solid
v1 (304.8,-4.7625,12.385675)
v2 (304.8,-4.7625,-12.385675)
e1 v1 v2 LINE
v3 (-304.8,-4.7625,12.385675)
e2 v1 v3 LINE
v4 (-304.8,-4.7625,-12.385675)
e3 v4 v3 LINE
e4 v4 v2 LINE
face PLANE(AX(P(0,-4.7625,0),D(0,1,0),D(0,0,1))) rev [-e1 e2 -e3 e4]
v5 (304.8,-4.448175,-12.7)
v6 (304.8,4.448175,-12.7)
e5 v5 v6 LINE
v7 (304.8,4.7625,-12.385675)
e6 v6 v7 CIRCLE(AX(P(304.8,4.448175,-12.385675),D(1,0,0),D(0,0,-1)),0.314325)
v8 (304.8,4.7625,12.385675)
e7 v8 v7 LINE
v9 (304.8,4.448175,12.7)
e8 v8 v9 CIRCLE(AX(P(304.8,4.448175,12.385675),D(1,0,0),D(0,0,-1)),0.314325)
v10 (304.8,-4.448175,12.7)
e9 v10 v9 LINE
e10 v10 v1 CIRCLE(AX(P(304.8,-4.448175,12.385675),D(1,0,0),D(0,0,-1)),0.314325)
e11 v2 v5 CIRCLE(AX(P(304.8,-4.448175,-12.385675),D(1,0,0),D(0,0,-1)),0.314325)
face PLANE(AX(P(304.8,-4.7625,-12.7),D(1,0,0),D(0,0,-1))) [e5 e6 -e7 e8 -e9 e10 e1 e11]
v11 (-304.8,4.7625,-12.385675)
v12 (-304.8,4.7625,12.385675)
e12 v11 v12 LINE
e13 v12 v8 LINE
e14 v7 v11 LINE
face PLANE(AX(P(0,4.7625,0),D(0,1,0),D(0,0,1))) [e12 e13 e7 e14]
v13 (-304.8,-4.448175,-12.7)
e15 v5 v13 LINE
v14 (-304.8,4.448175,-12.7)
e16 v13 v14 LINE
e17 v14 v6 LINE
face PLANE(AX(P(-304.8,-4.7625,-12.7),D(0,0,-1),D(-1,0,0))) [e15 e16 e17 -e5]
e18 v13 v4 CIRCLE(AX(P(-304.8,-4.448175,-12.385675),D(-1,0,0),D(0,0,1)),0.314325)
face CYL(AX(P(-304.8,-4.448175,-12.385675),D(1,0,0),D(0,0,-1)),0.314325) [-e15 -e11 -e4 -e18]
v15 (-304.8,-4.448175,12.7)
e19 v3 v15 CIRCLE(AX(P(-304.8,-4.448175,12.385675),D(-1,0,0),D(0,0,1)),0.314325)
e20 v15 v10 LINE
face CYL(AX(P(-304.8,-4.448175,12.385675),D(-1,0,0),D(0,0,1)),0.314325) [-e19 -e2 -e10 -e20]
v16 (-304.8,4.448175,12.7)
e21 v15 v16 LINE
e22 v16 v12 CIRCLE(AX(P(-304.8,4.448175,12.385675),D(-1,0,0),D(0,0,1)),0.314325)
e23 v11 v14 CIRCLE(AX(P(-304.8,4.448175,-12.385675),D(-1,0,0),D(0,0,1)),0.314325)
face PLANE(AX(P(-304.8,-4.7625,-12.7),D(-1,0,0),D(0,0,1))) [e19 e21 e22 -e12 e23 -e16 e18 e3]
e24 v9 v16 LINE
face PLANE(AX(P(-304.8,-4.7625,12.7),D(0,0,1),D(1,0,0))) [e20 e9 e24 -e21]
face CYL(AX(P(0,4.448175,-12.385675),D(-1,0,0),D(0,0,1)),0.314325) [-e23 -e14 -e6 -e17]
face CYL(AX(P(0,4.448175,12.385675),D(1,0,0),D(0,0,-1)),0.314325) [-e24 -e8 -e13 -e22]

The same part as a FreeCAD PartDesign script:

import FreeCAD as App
import Part
import Sketcher
Q = App.Units.Quantity


def edges_at(feature, points):
    """Names of the edges that pass closest to the given points."""
    edges = feature.Shape.Edges
    near = lambda p: min(range(len(edges)), key=lambda i: edges[i].distToShape(Part.Vertex(*p))[0])
    return sorted({f"Edge{near(p) + 1}" for p in points})

doc = App.newDocument("Part")
body = doc.addObject("PartDesign::Body", "Body")

sketch1 = body.newObject("Sketcher::SketchObject", "Sketch")
sketch1.AttachmentSupport = (doc.getObject("XZ_Plane"), [""])
sketch1.MapMode = "FlatFace"
sketch1.addGeometry(Part.LineSegment(App.Vector(-304.8, -12.7, 0), App.Vector(-304.8, 12.7, 0)), False)
sketch1.addGeometry(Part.LineSegment(App.Vector(-304.8, 12.7, 0), App.Vector(304.8, 12.7, 0)), False)
sketch1.addGeometry(Part.LineSegment(App.Vector(304.8, 12.7, 0), App.Vector(304.8, -12.7, 0)), False)
sketch1.addGeometry(Part.LineSegment(App.Vector(304.8, -12.7, 0), App.Vector(-304.8, -12.7, 0)), False)
sketch1.addConstraint(Sketcher.Constraint("Coincident", 0, 2, 1, 1))
sketch1.addConstraint(Sketcher.Constraint("Coincident", 1, 2, 2, 1))
sketch1.addConstraint(Sketcher.Constraint("Coincident", 2, 2, 3, 1))
sketch1.addConstraint(Sketcher.Constraint("Coincident", 3, 2, 0, 1))
sketch1.addConstraint(Sketcher.Constraint("Vertical", 0))
sketch1.addConstraint(Sketcher.Constraint("Horizontal", 1))
sketch1.addConstraint(Sketcher.Constraint("Vertical", 2))
sketch1.addConstraint(Sketcher.Constraint("Horizontal", 3))
sketch1.addConstraint(Sketcher.Constraint("Symmetric", 0, 2, 2, 2, -1, 1))
sketch1.addConstraint(Sketcher.Constraint("DistanceX", 1, 1, 1, 2, Q("24 in")))
sketch1.addConstraint(Sketcher.Constraint("DistanceY", 0, 1, 0, 2, Q("1 in")))
pad1 = body.newObject("PartDesign::Pad", "Pad")
pad1.Profile = sketch1
pad1.Type = "TwoLengths"
pad1.Length = Q("0.1875 in")
pad1.Length2 = Q("0.1875 in")
pad1.Reversed = True
doc.recompute()

fillet = body.newObject("PartDesign::Fillet", "Fillet")
fillet.Base = (pad1, edges_at(pad1, [
    (0, 4.763, 12.7),
    (0, -4.763, -12.7),
    (0, 4.763, -12.7),
    (0, -4.763, 12.7),
]))
fillet.Radius = 0.314325

doc.recompute()
